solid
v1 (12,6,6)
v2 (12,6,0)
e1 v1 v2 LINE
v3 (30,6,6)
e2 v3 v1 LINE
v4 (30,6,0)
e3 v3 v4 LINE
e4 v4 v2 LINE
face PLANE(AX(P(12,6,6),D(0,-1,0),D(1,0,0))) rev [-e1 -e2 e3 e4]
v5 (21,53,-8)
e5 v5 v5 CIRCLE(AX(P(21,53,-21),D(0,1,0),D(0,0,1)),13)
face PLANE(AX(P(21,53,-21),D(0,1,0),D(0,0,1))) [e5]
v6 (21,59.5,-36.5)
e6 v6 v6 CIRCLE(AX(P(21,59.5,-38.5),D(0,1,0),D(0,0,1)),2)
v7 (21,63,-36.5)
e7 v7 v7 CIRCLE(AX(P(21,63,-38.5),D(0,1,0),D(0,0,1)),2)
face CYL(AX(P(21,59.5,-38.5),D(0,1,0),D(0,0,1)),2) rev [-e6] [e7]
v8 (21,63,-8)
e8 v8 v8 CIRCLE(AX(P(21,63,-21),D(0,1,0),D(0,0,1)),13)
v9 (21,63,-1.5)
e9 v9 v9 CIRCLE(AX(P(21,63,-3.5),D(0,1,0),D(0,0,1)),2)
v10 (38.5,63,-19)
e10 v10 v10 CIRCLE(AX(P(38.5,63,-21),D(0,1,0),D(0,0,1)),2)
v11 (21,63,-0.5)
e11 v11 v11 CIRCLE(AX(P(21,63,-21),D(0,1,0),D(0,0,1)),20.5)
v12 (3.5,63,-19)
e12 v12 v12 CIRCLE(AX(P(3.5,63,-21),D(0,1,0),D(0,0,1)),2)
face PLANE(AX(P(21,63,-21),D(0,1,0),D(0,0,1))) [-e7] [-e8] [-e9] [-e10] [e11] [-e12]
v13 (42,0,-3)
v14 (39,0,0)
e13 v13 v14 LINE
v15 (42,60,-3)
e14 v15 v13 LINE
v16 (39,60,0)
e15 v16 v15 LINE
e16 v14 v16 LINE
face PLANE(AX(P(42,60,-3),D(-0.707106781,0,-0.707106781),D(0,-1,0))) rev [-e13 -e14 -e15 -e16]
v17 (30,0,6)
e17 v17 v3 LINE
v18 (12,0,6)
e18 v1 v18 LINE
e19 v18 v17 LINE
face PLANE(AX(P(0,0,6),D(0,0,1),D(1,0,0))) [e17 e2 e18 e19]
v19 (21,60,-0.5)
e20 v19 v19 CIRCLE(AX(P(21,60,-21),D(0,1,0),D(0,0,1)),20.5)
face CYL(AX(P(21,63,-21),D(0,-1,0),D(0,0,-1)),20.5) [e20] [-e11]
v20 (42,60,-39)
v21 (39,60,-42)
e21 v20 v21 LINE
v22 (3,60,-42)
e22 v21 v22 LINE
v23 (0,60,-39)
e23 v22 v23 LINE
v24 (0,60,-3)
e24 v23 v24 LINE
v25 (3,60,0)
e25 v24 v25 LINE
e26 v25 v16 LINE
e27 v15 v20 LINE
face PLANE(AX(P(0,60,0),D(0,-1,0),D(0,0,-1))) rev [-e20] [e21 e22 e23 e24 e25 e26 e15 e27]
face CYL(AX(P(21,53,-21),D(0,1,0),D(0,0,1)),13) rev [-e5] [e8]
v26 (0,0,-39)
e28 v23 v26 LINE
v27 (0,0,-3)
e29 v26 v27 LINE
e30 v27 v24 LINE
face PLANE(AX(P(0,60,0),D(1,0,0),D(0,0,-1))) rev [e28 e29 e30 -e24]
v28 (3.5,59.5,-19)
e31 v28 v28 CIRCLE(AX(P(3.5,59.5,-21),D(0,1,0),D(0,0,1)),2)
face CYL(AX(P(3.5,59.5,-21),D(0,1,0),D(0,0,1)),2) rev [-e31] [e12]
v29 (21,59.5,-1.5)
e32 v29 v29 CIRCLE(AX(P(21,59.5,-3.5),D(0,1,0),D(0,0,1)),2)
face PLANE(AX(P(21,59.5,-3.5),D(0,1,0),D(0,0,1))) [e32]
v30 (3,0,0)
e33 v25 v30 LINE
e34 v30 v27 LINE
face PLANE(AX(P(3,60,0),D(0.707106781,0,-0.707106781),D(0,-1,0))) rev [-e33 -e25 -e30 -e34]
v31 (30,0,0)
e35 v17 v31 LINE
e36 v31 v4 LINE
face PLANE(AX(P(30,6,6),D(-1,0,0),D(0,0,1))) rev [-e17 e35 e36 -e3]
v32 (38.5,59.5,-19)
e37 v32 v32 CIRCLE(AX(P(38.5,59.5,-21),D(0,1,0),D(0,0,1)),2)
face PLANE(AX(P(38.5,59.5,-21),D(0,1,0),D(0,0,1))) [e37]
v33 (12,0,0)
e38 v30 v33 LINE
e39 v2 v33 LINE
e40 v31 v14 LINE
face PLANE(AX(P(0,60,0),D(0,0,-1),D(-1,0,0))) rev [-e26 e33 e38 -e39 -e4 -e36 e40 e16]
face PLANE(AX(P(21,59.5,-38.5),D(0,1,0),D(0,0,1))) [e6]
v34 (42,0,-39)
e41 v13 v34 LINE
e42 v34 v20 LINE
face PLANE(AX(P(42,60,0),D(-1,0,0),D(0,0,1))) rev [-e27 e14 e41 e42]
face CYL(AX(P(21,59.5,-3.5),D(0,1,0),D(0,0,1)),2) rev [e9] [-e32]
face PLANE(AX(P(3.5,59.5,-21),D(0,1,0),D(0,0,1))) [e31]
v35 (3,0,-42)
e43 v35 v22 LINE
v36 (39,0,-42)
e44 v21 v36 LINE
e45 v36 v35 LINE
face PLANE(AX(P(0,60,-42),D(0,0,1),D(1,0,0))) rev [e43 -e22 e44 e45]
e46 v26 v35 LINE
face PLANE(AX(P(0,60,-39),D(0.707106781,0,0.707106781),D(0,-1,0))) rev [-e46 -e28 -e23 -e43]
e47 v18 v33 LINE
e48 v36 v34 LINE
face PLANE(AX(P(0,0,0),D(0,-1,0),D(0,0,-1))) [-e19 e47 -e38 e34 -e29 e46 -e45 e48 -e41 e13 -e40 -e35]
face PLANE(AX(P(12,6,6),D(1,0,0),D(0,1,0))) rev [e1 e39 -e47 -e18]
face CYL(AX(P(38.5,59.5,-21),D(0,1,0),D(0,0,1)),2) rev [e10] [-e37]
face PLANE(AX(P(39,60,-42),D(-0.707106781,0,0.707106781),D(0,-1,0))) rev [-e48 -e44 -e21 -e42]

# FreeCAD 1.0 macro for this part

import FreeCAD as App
import Part
import Sketcher
from FreeCAD import Vector
Q = App.Units.Quantity


def edges_at(feature, points):
    """Names of the edges that pass closest to the given points."""
    edges = feature.Shape.Edges
    near = lambda p: min(range(len(edges)), key=lambda i: edges[i].distToShape(Part.Vertex(*p))[0])
    return sorted({f"Edge{near(p) + 1}" for p in points})

doc = App.newDocument("Part")
body = doc.addObject("PartDesign::Body", "Body")

sketch1 = body.newObject("Sketcher::SketchObject", "Sketch")
sketch1.AttachmentSupport = (doc.getObject("XZ_Plane"), [""])
sketch1.MapMode = "FlatFace"
sketch1.addGeometry(Part.LineSegment(Vector(0, -42, 0), Vector(0, 0, 0)), False)
sketch1.addGeometry(Part.LineSegment(Vector(0, 0, 0), Vector(42, 0, 0)), False)
sketch1.addGeometry(Part.LineSegment(Vector(42, 0, 0), Vector(42, -42, 0)), False)
sketch1.addGeometry(Part.LineSegment(Vector(42, -42, 0), Vector(0, -42, 0)), False)
sketch1.addConstraint(Sketcher.Constraint("Coincident", 0, 2, 1, 1))
sketch1.addConstraint(Sketcher.Constraint("Coincident", 1, 2, 2, 1))
sketch1.addConstraint(Sketcher.Constraint("Coincident", 2, 2, 3, 1))
sketch1.addConstraint(Sketcher.Constraint("Coincident", 3, 2, 0, 1))
sketch1.addConstraint(Sketcher.Constraint("Vertical", 0))
sketch1.addConstraint(Sketcher.Constraint("Horizontal", 1))
sketch1.addConstraint(Sketcher.Constraint("Vertical", 2))
sketch1.addConstraint(Sketcher.Constraint("Horizontal", 3))
sketch1.addConstraint(Sketcher.Constraint("Coincident", 0, 2, -1, 1))
sketch1.addConstraint(Sketcher.Constraint("Equal", 3, 0))
sketch1.addConstraint(Sketcher.Constraint("DistanceX", 1, 1, 1, 2, Q("42 mm")))
pad1 = body.newObject("PartDesign::Pad", "Pad")
pad1.Profile = sketch1
pad1.Length = 60
pad1.Reversed = True

sketch2 = body.newObject("Sketcher::SketchObject", "Sketch001")
sketch2.AttachmentSupport = (doc.getObject("XZ_Plane"), [""])
sketch2.MapMode = "FlatFace"
sketch2.AttachmentOffset = App.Placement(Vector(0, 0, -60), App.Rotation())
sketch2.addGeometry(Part.Circle(Vector(21, -21, 0), Vector(0, 0, 1), 20), False)
sketch2.addConstraint(Sketcher.Constraint("Diameter", 0, Q("41 mm")))
sketch2.addConstraint(Sketcher.Constraint("DistanceX", -1, 1, 0, 3, Q("21 mm")))
sketch2.addConstraint(Sketcher.Constraint("DistanceY", 0, 3, -1, 1, Q("21 mm")))
pad2 = body.newObject("PartDesign::Pad", "Pad001")
pad2.Profile = sketch2
pad2.Length = 3
pad2.Reversed = True

sketch3 = body.newObject("Sketcher::SketchObject", "Sketch002")
sketch3.AttachmentSupport = (doc.getObject("XZ_Plane"), [""])
sketch3.MapMode = "FlatFace"
sketch3.AttachmentOffset = App.Placement(Vector(0, 0, -63), App.Rotation())
sketch3.addGeometry(Part.Circle(Vector(21, -21, 0), Vector(0, 0, 1), 13), False)
sketch3.addConstraint(Sketcher.Constraint("Diameter", 0, Q("26 mm")))
sketch3.addConstraint(Sketcher.Constraint("DistanceX", -1, 1, 0, 3, Q("21 mm")))
sketch3.addConstraint(Sketcher.Constraint("DistanceY", 0, 3, -1, 1, Q("21 mm")))
pocket1 = body.newObject("PartDesign::Pocket", "Pocket")
pocket1.Profile = sketch3
pocket1.Length = 10
pocket1.Reversed = True

sketch4 = body.newObject("Sketcher::SketchObject", "Sketch003")
sketch4.AttachmentSupport = (doc.getObject("XZ_Plane"), [""])
sketch4.MapMode = "FlatFace"
sketch4.AttachmentOffset = App.Placement(Vector(0, 0, -63), App.Rotation())
sketch4.addGeometry(Part.Circle(Vector(3.5, -21, 0), Vector(0, 0, 1), 2), False)
sketch4.addGeometry(Part.Circle(Vector(21, -38.5, 0), Vector(0, 0, 1), 2), False)
sketch4.addGeometry(Part.Circle(Vector(38.5, -21, 0), Vector(0, 0, 1), 2), False)
sketch4.addGeometry(Part.Circle(Vector(21, -3.5, 0), Vector(0, 0, 1), 2), False)
sketch4.addConstraint(Sketcher.Constraint("Equal", 0, 1))
sketch4.addConstraint(Sketcher.Constraint("Equal", 1, 2))
sketch4.addConstraint(Sketcher.Constraint("Equal", 2, 3))
sketch4.addConstraint(Sketcher.Constraint("Horizontal", 0, 3, 2, 3))
sketch4.addConstraint(Sketcher.Constraint("Vertical", 1, 3, 3, 3))
sketch4.addConstraint(Sketcher.Constraint("Diameter", 0, Q("4 mm")))
sketch4.addConstraint(Sketcher.Constraint("DistanceY", 0, 3, -1, 1, Q("21 mm")))
sketch4.addConstraint(Sketcher.Constraint("DistanceX", -1, 1, 1, 3, Q("21 mm")))
sketch4.addConstraint(Sketcher.Constraint("DistanceX", 0, 3, 2, 3, Q("35 mm")))
sketch4.addConstraint(Sketcher.Constraint("DistanceY", 1, 3, 3, 3, Q("35 mm")))
sketch4.addConstraint(Sketcher.Constraint("DistanceX", -1, 1, 0, 3, Q("3.5 mm")))
sketch4.addConstraint(Sketcher.Constraint("DistanceY", 1, 3, -1, 1, Q("38.5 mm")))
pocket2 = body.newObject("PartDesign::Pocket", "Pocket001")
pocket2.Profile = sketch4
pocket2.Length = 3.5
pocket2.Reversed = True
doc.recompute()

chamfer = body.newObject("PartDesign::Chamfer", "Chamfer")
chamfer.Base = (pocket2, edges_at(pocket2, [
    (0, 30, -42),
    (42, 30, -42),
    (42, 30, 0),
    (0, 30, 0),
]))
chamfer.Size = 3

sketch5 = body.newObject("Sketcher::SketchObject", "Sketch004")
sketch5.AttachmentSupport = (doc.getObject("XY_Plane"), [""])
sketch5.MapMode = "FlatFace"
sketch5.addGeometry(Part.LineSegment(Vector(12, 6, 0), Vector(12, 0, 0)), False)
sketch5.addGeometry(Part.LineSegment(Vector(12, 0, 0), Vector(30, 0, 0)), False)
sketch5.addGeometry(Part.LineSegment(Vector(30, 0, 0), Vector(30, 6, 0)), False)
sketch5.addGeometry(Part.LineSegment(Vector(30, 6, 0), Vector(12, 6, 0)), False)
sketch5.addConstraint(Sketcher.Constraint("Coincident", 0, 2, 1, 1))
sketch5.addConstraint(Sketcher.Constraint("Coincident", 1, 2, 2, 1))
sketch5.addConstraint(Sketcher.Constraint("Coincident", 2, 2, 3, 1))
sketch5.addConstraint(Sketcher.Constraint("Coincident", 3, 2, 0, 1))
sketch5.addConstraint(Sketcher.Constraint("Vertical", 0))
sketch5.addConstraint(Sketcher.Constraint("Horizontal", 1))
sketch5.addConstraint(Sketcher.Constraint("Vertical", 2))
sketch5.addConstraint(Sketcher.Constraint("Horizontal", 3))
sketch5.addConstraint(Sketcher.Constraint("PointOnObject", 0, 2, -1))
sketch5.addConstraint(Sketcher.Constraint("DistanceX", 1, 1, 1, 2, Q("18 mm")))
sketch5.addConstraint(Sketcher.Constraint("DistanceY", 0, 2, 0, 1, Q("6 mm")))
sketch5.addConstraint(Sketcher.Constraint("DistanceX", -1, 1, 0, 2, Q("12 mm")))
pad3 = body.newObject("PartDesign::Pad", "Pad002")
pad3.Profile = sketch5
pad3.Length = 6

doc.recompute()
